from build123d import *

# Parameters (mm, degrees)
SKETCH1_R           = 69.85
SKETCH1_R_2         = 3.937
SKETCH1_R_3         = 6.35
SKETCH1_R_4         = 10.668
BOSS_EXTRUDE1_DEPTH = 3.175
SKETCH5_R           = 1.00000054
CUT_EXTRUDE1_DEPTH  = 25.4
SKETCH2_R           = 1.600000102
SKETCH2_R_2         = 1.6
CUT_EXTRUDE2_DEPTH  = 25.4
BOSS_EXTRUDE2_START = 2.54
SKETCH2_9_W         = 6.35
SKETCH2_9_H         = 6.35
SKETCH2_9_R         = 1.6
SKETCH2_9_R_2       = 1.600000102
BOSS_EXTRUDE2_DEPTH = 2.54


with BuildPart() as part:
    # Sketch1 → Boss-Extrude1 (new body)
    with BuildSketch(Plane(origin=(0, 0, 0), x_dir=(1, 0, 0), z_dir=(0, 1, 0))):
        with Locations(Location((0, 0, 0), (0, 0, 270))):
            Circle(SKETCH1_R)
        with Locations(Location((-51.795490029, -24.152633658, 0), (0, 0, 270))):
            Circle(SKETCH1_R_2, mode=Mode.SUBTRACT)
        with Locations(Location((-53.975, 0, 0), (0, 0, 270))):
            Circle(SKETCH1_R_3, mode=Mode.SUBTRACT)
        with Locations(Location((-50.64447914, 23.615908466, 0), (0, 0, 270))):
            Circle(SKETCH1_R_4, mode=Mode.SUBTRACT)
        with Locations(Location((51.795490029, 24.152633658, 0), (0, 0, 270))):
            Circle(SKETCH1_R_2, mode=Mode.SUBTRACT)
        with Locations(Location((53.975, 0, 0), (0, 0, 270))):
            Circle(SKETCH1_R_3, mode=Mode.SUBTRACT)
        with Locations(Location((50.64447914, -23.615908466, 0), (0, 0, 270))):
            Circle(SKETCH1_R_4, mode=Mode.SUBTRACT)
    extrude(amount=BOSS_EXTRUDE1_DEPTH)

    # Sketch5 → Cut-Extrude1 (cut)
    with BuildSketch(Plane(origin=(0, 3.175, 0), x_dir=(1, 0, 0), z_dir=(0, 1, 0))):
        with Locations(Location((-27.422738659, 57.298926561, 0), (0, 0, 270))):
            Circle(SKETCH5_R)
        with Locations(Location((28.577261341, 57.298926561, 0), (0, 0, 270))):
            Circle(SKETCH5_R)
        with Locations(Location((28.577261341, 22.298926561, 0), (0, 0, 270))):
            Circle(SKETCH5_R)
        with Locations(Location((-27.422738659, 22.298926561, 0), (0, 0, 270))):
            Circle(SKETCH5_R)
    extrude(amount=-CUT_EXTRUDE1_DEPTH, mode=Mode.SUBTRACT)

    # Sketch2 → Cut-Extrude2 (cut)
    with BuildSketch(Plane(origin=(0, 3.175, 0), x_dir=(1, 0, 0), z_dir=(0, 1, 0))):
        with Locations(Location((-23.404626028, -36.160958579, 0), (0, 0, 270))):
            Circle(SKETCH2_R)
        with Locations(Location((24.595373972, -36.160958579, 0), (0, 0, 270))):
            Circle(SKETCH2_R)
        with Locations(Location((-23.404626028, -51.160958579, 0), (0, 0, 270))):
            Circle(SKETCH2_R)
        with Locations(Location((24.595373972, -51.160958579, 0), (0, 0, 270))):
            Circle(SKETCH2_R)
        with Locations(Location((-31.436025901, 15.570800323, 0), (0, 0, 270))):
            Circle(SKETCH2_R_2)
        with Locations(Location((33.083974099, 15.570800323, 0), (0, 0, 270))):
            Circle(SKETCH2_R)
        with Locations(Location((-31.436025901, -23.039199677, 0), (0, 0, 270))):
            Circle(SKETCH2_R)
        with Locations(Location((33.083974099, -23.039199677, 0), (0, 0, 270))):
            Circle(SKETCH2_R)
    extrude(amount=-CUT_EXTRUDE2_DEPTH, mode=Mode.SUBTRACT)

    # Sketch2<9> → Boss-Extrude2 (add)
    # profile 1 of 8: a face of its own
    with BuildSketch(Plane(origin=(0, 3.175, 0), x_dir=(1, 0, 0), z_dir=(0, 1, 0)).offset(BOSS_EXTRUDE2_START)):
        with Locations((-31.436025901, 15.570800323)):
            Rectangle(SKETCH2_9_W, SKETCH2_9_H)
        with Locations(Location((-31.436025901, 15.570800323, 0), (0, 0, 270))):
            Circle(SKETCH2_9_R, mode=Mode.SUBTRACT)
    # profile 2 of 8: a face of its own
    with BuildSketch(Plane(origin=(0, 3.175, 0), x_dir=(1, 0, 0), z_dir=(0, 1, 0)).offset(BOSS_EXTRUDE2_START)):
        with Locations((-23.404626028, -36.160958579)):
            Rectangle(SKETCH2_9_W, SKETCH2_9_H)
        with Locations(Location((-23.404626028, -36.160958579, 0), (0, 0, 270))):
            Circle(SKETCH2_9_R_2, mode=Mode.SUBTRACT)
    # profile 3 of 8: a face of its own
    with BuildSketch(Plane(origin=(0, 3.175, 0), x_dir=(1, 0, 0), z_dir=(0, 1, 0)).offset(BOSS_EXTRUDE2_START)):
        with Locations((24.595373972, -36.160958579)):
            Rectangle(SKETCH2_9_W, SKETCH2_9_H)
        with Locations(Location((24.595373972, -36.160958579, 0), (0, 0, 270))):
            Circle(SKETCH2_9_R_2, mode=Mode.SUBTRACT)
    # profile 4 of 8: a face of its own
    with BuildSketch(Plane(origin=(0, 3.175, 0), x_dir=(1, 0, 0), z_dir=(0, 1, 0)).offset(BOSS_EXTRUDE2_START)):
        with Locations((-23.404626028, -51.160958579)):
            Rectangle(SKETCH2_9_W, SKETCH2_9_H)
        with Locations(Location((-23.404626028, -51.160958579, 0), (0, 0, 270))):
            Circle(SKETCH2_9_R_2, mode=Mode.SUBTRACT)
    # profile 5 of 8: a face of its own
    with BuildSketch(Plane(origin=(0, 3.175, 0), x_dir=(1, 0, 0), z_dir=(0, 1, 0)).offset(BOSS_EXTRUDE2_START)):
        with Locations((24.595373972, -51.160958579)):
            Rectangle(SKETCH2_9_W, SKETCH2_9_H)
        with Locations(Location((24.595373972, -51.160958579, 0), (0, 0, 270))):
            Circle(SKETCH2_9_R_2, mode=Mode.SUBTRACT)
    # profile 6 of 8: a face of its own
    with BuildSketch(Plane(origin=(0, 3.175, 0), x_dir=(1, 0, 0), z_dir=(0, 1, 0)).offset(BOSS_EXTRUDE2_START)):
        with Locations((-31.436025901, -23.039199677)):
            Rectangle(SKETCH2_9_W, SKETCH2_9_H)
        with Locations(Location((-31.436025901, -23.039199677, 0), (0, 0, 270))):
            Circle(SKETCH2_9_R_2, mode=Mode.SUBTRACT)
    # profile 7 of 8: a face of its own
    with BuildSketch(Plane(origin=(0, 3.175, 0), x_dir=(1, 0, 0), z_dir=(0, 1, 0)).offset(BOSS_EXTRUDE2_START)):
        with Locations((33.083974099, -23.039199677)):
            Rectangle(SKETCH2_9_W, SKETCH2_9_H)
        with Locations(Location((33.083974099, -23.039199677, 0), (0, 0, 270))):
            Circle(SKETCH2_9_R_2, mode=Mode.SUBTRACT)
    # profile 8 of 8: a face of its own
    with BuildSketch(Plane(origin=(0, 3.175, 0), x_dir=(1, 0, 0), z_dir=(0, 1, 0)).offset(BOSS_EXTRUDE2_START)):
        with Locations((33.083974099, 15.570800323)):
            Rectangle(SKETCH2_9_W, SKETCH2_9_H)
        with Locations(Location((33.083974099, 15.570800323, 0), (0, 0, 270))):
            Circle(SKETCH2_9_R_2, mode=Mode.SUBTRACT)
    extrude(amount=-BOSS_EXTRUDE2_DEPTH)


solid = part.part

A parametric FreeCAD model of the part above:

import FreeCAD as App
import Part
import Sketcher
Q = App.Units.Quantity


def add_polygon(sketch, points):
    """Adds a closed chain of lines whose ends are joined by coincident constraints."""
    first, n = sketch.GeometryCount, len(points)
    for a, b in zip(points, points[1:] + points[:1]):
        sketch.addGeometry(Part.LineSegment(App.Vector(*a, 0), App.Vector(*b, 0)), False)
    for i in range(n):
        sketch.addConstraint(Sketcher.Constraint("Coincident", first + i, 2, first + (i + 1) % n, 1))

doc = App.newDocument("Part")
body = doc.addObject("PartDesign::Body", "Body")

# Sketch on XZ plane
sketch1 = doc.addObject("Sketcher::SketchObject", "Sketch")
body.addObject(sketch1)
sketch1.AttachmentSupport = (doc.XZ_Plane, [""])
sketch1.MapMode = "FlatFace"
sketch1.addGeometry(Part.Circle(App.Vector(0, 0, 0), App.Vector(0, 0, 1), 69.85), False)
sketch1.addGeometry(Part.Circle(App.Vector(-50.644479, -23.615908, 0), App.Vector(0, 0, 1), 10.668), False)
sketch1.addGeometry(Part.Circle(App.Vector(-53.975, 0, 0), App.Vector(0, 0, 1), 6.35), False)
sketch1.addGeometry(Part.Circle(App.Vector(-51.79549, 24.152634, 0), App.Vector(0, 0, 1), 3.937), False)
sketch1.addGeometry(Part.Circle(App.Vector(51.79549, -24.152634, 0), App.Vector(0, 0, 1), 3.937), False)
sketch1.addGeometry(Part.Circle(App.Vector(53.975, 0, 0), App.Vector(0, 0, 1), 6.35), False)
sketch1.addGeometry(Part.Circle(App.Vector(50.644479, 23.615908, 0), App.Vector(0, 0, 1), 10.668), False)
sketch1.addConstraint(Sketcher.Constraint("Coincident", 0, 3, -1, 1))
sketch1.addConstraint(Sketcher.Constraint("Equal", 3, 4))
sketch1.addConstraint(Sketcher.Constraint("Equal", 2, 5))
sketch1.addConstraint(Sketcher.Constraint("Equal", 1, 6))
sketch1.addConstraint(Sketcher.Constraint("Symmetric", 3, 3, 4, 3, -1, 1))
sketch1.addConstraint(Sketcher.Constraint("Symmetric", 2, 3, 5, 3, -1, 1))
sketch1.addConstraint(Sketcher.Constraint("Symmetric", 1, 3, 6, 3, -1, 1))
sketch1.addConstraint(Sketcher.Constraint("PointOnObject", 2, 3, -1))
sketch1.addConstraint(Sketcher.Constraint("Diameter", 0, Q("5.5 in")))
sketch1.addConstraint(Sketcher.Constraint("Diameter", 2, Q("0.5 in")))
sketch1.addConstraint(Sketcher.Constraint("Diameter", 1, Q("0.84 in")))
sketch1.addConstraint(Sketcher.Constraint("Diameter", 3, Q("0.31 in")))
sketch1.addConstraint(Sketcher.Constraint("DistanceX", 2, 3, 5, 3, Q("4.25 in")))
sketch1.addConstraint(Sketcher.Constraint("DistanceX", 1, 3, -1, 1, 50.644479))
sketch1.addConstraint(Sketcher.Constraint("DistanceY", 1, 3, -1, 1, 23.615908))
sketch1.addConstraint(Sketcher.Constraint("DistanceX", 3, 3, -1, 1, 51.79549))
sketch1.addConstraint(Sketcher.Constraint("DistanceY", -1, 1, 3, 3, 24.152634))
pad1 = doc.addObject("PartDesign::Pad", "Pad")
body.addObject(pad1)
pad1.Profile = sketch1
pad1.Length = Q("0.125 in")
pad1.Reversed = True

# Sketch on XZ plane
sketch2 = doc.addObject("Sketcher::SketchObject", "Sketch001")
body.addObject(sketch2)
sketch2.AttachmentSupport = (doc.XZ_Plane, [""])
sketch2.MapMode = "FlatFace"
sketch2.AttachmentOffset = App.Placement(App.Vector(0, 0, -0.125 * 25.4), App.Rotation())
sketch2.addGeometry(Part.Circle(App.Vector(-27.422739, -57.298927, 0), App.Vector(0, 0, 1), 1.000001), False)
sketch2.addGeometry(Part.Circle(App.Vector(28.577261, -57.298927, 0), App.Vector(0, 0, 1), 1.000001), False)
sketch2.addGeometry(Part.Circle(App.Vector(28.577261, -22.298927, 0), App.Vector(0, 0, 1), 1.000001), False)
sketch2.addGeometry(Part.Circle(App.Vector(-27.422739, -22.298927, 0), App.Vector(0, 0, 1), 1.000001), False)
sketch2.addConstraint(Sketcher.Constraint("Equal", 0, 1))
sketch2.addConstraint(Sketcher.Constraint("Equal", 1, 2))
sketch2.addConstraint(Sketcher.Constraint("Equal", 2, 3))
sketch2.addConstraint(Sketcher.Constraint("Horizontal", 0, 3, 1, 3))
sketch2.addConstraint(Sketcher.Constraint("Horizontal", 2, 3, 3, 3))
sketch2.addConstraint(Sketcher.Constraint("Vertical", 1, 3, 2, 3))
sketch2.addConstraint(Sketcher.Constraint("Vertical", 0, 3, 3, 3))
sketch2.addConstraint(Sketcher.Constraint("Diameter", 0, 2.000001))
sketch2.addConstraint(Sketcher.Constraint("DistanceX", 0, 3, 1, 3, 56.0))
sketch2.addConstraint(Sketcher.Constraint("DistanceY", 1, 3, 2, 3, 35.0))
sketch2.addConstraint(Sketcher.Constraint("DistanceX", 0, 3, -1, 1, 27.422739))
sketch2.addConstraint(Sketcher.Constraint("DistanceY", 0, 3, -1, 1, 57.298927))
pocket1 = doc.addObject("PartDesign::Pocket", "Pocket")
body.addObject(pocket1)
pocket1.Profile = sketch2
pocket1.Length = Q("1 in")
pocket1.Reversed = True

# Sketch on XZ plane
sketch3 = doc.addObject("Sketcher::SketchObject", "Sketch002")
body.addObject(sketch3)
sketch3.AttachmentSupport = (doc.XZ_Plane, [""])
sketch3.MapMode = "FlatFace"
sketch3.AttachmentOffset = App.Placement(App.Vector(0, 0, -0.125 * 25.4), App.Rotation())
sketch3.addGeometry(Part.Circle(App.Vector(-23.404626, 36.160959, 0), App.Vector(0, 0, 1), 1.6), False)
sketch3.addGeometry(Part.Circle(App.Vector(24.595374, 36.160959, 0), App.Vector(0, 0, 1), 1.6), False)
sketch3.addGeometry(Part.Circle(App.Vector(-23.404626, 51.160959, 0), App.Vector(0, 0, 1), 1.6), False)
sketch3.addGeometry(Part.Circle(App.Vector(24.595374, 51.160959, 0), App.Vector(0, 0, 1), 1.6), False)
sketch3.addGeometry(Part.Circle(App.Vector(-31.436026, -15.5708, 0), App.Vector(0, 0, 1), 1.6), False)
sketch3.addGeometry(Part.Circle(App.Vector(33.083974, -15.5708, 0), App.Vector(0, 0, 1), 1.6), False)
sketch3.addGeometry(Part.Circle(App.Vector(-31.436026, 23.0392, 0), App.Vector(0, 0, 1), 1.6), False)
sketch3.addGeometry(Part.Circle(App.Vector(33.083974, 23.0392, 0), App.Vector(0, 0, 1), 1.6), False)
sketch3.addConstraint(Sketcher.Constraint("Equal", 0, 1))
sketch3.addConstraint(Sketcher.Constraint("Equal", 1, 2))
sketch3.addConstraint(Sketcher.Constraint("Equal", 2, 3))
sketch3.addConstraint(Sketcher.Constraint("Equal", 3, 4))
sketch3.addConstraint(Sketcher.Constraint("Equal", 4, 5))
sketch3.addConstraint(Sketcher.Constraint("Equal", 5, 6))
sketch3.addConstraint(Sketcher.Constraint("Equal", 6, 7))
sketch3.addConstraint(Sketcher.Constraint("Horizontal", 0, 3, 1, 3))
sketch3.addConstraint(Sketcher.Constraint("Horizontal", 2, 3, 3, 3))
sketch3.addConstraint(Sketcher.Constraint("Horizontal", 4, 3, 5, 3))
sketch3.addConstraint(Sketcher.Constraint("Horizontal", 6, 3, 7, 3))
sketch3.addConstraint(Sketcher.Constraint("Vertical", 0, 3, 2, 3))
sketch3.addConstraint(Sketcher.Constraint("Vertical", 1, 3, 3, 3))
sketch3.addConstraint(Sketcher.Constraint("Vertical", 4, 3, 6, 3))
sketch3.addConstraint(Sketcher.Constraint("Vertical", 5, 3, 7, 3))
sketch3.addConstraint(Sketcher.Constraint("Diameter", 0, 3.2))
sketch3.addConstraint(Sketcher.Constraint("DistanceY", 4, 3, -1, 1, 15.5708))
sketch3.addConstraint(Sketcher.Constraint("DistanceY", -1, 1, 6, 3, 23.0392))
sketch3.addConstraint(Sketcher.Constraint("DistanceX", 0, 3, 1, 3, 48.0))
sketch3.addConstraint(Sketcher.Constraint("DistanceY", 0, 3, 2, 3, 15.0))
sketch3.addConstraint(Sketcher.Constraint("DistanceX", 4, 3, 0, 3, 8.0314))
sketch3.addConstraint(Sketcher.Constraint("DistanceX", 1, 3, 5, 3, 8.4886))
sketch3.addConstraint(Sketcher.Constraint("DistanceY", -1, 1, 0, 3, 36.160959))
sketch3.addConstraint(Sketcher.Constraint("DistanceX", 0, 3, -1, 1, 23.404626))
pocket2 = doc.addObject("PartDesign::Pocket", "Pocket001")
body.addObject(pocket2)
pocket2.Profile = sketch3
pocket2.Length = Q("1 in")
pocket2.Reversed = True

# Sketch on XZ plane
sketch4 = doc.addObject("Sketcher::SketchObject", "Sketch003")
body.addObject(sketch4)
sketch4.AttachmentSupport = (doc.XZ_Plane, [""])
sketch4.MapMode = "FlatFace"
sketch4.AttachmentOffset = App.Placement(App.Vector(0, 0, -0.225 * 25.4), App.Rotation())
add_polygon(sketch4, [(-34.611026, -18.7458), (-34.611026, -12.3958), (-28.261026, -12.3958), (-28.261026, -18.7458)])  # lines 0-3
sketch4.addGeometry(Part.Circle(App.Vector(-31.436026, -15.5708, 0), App.Vector(0, 0, 1), 1.6), False)  # 4
add_polygon(sketch4, [(-26.579626, 32.985959), (-26.579626, 39.335959), (-20.229626, 39.335959), (-20.229626, 32.985959)])  # lines 5-8
sketch4.addGeometry(Part.Circle(App.Vector(-23.404626, 36.160959, 0), App.Vector(0, 0, 1), 1.6), False)  # 9
add_polygon(sketch4, [(21.420374, 32.985959), (21.420374, 39.335959), (27.770374, 39.335959), (27.770374, 32.985959)])  # lines 10-13
sketch4.addGeometry(Part.Circle(App.Vector(24.595374, 36.160959, 0), App.Vector(0, 0, 1), 1.6), False)  # 14
add_polygon(sketch4, [(-26.579626, 47.985959), (-26.579626, 54.335959), (-20.229626, 54.335959), (-20.229626, 47.985959)])  # lines 15-18
sketch4.addGeometry(Part.Circle(App.Vector(-23.404626, 51.160959, 0), App.Vector(0, 0, 1), 1.6), False)  # 19
add_polygon(sketch4, [(21.420374, 47.985959), (21.420374, 54.335959), (27.770374, 54.335959), (27.770374, 47.985959)])  # lines 20-23
sketch4.addGeometry(Part.Circle(App.Vector(24.595374, 51.160959, 0), App.Vector(0, 0, 1), 1.6), False)  # 24
add_polygon(sketch4, [(-34.611026, 19.8642), (-34.611026, 26.2142), (-28.261026, 26.2142), (-28.261026, 19.8642)])  # lines 25-28
sketch4.addGeometry(Part.Circle(App.Vector(-31.436026, 23.0392, 0), App.Vector(0, 0, 1), 1.6), False)  # 29
add_polygon(sketch4, [(29.908974, 19.8642), (29.908974, 26.2142), (36.258974, 26.2142), (36.258974, 19.8642)])  # lines 30-33
sketch4.addGeometry(Part.Circle(App.Vector(33.083974, 23.0392, 0), App.Vector(0, 0, 1), 1.6), False)  # 34
add_polygon(sketch4, [(29.908974, -18.7458), (29.908974, -12.3958), (36.258974, -12.3958), (36.258974, -18.7458)])  # lines 35-38
sketch4.addGeometry(Part.Circle(App.Vector(33.083974, -15.5708, 0), App.Vector(0, 0, 1), 1.6), False)  # 39
sketch4.addConstraint(Sketcher.Constraint("Vertical", 0))
sketch4.addConstraint(Sketcher.Constraint("Horizontal", 1))
sketch4.addConstraint(Sketcher.Constraint("Vertical", 2))
sketch4.addConstraint(Sketcher.Constraint("Horizontal", 3))
sketch4.addConstraint(Sketcher.Constraint("Vertical", 5))
sketch4.addConstraint(Sketcher.Constraint("Horizontal", 6))
sketch4.addConstraint(Sketcher.Constraint("Vertical", 7))
sketch4.addConstraint(Sketcher.Constraint("Horizontal", 8))
sketch4.addConstraint(Sketcher.Constraint("Vertical", 10))
sketch4.addConstraint(Sketcher.Constraint("Horizontal", 11))
sketch4.addConstraint(Sketcher.Constraint("Vertical", 12))
sketch4.addConstraint(Sketcher.Constraint("Horizontal", 13))
sketch4.addConstraint(Sketcher.Constraint("Vertical", 15))
sketch4.addConstraint(Sketcher.Constraint("Horizontal", 16))
sketch4.addConstraint(Sketcher.Constraint("Vertical", 17))
sketch4.addConstraint(Sketcher.Constraint("Horizontal", 18))
sketch4.addConstraint(Sketcher.Constraint("Vertical", 20))
sketch4.addConstraint(Sketcher.Constraint("Horizontal", 21))
sketch4.addConstraint(Sketcher.Constraint("Vertical", 22))
sketch4.addConstraint(Sketcher.Constraint("Horizontal", 23))
sketch4.addConstraint(Sketcher.Constraint("Vertical", 25))
sketch4.addConstraint(Sketcher.Constraint("Horizontal", 26))
sketch4.addConstraint(Sketcher.Constraint("Vertical", 27))
sketch4.addConstraint(Sketcher.Constraint("Horizontal", 28))
sketch4.addConstraint(Sketcher.Constraint("Vertical", 30))
sketch4.addConstraint(Sketcher.Constraint("Horizontal", 31))
sketch4.addConstraint(Sketcher.Constraint("Vertical", 32))
sketch4.addConstraint(Sketcher.Constraint("Horizontal", 33))
sketch4.addConstraint(Sketcher.Constraint("Vertical", 35))
sketch4.addConstraint(Sketcher.Constraint("Horizontal", 36))
sketch4.addConstraint(Sketcher.Constraint("Vertical", 37))
sketch4.addConstraint(Sketcher.Constraint("Horizontal", 38))
sketch4.addConstraint(Sketcher.Constraint("Equal", 4, 9))
sketch4.addConstraint(Sketcher.Constraint("Equal", 9, 14))
sketch4.addConstraint(Sketcher.Constraint("Equal", 14, 19))
sketch4.addConstraint(Sketcher.Constraint("Equal", 19, 24))
sketch4.addConstraint(Sketcher.Constraint("Equal", 24, 29))
sketch4.addConstraint(Sketcher.Constraint("Equal", 29, 34))
sketch4.addConstraint(Sketcher.Constraint("Equal", 34, 39))
sketch4.addConstraint(Sketcher.Constraint("Horizontal", 9, 3, 14, 3))
sketch4.addConstraint(Sketcher.Constraint("Horizontal", 19, 3, 24, 3))
sketch4.addConstraint(Sketcher.Constraint("Horizontal", 29, 3, 34, 3))
sketch4.addConstraint(Sketcher.Constraint("Horizontal", 4, 3, 39, 3))
sketch4.addConstraint(Sketcher.Constraint("Horizontal", 6, 2, 10, 2))
sketch4.addConstraint(Sketcher.Constraint("Horizontal", 8, 2, 12, 2))
sketch4.addConstraint(Sketcher.Constraint("Horizontal", 16, 2, 20, 2))
sketch4.addConstraint(Sketcher.Constraint("Horizontal", 18, 2, 22, 2))
sketch4.addConstraint(Sketcher.Constraint("Horizontal", 26, 2, 30, 2))
sketch4.addConstraint(Sketcher.Constraint("Horizontal", 28, 2, 32, 2))
sketch4.addConstraint(Sketcher.Constraint("Horizontal", 1, 2, 35, 2))
sketch4.addConstraint(Sketcher.Constraint("Horizontal", 3, 2, 37, 2))
sketch4.addConstraint(Sketcher.Constraint("Vertical", 9, 3, 19, 3))
sketch4.addConstraint(Sketcher.Constraint("Vertical", 14, 3, 24, 3))
sketch4.addConstraint(Sketcher.Constraint("Vertical", 4, 3, 29, 3))
sketch4.addConstraint(Sketcher.Constraint("Vertical", 34, 3, 39, 3))
sketch4.addConstraint(Sketcher.Constraint("Vertical", 8, 2, 15, 2))
sketch4.addConstraint(Sketcher.Constraint("Vertical", 7, 2, 16, 2))
sketch4.addConstraint(Sketcher.Constraint("Vertical", 13, 2, 20, 2))
sketch4.addConstraint(Sketcher.Constraint("Vertical", 12, 2, 21, 2))
sketch4.addConstraint(Sketcher.Constraint("Vertical", 3, 2, 25, 2))
sketch4.addConstraint(Sketcher.Constraint("Vertical", 2, 2, 26, 2))
sketch4.addConstraint(Sketcher.Constraint("Vertical", 33, 2, 35, 2))
sketch4.addConstraint(Sketcher.Constraint("Vertical", 32, 2, 36, 2))
sketch4.addConstraint(Sketcher.Constraint("Equal", 3, 6))
sketch4.addConstraint(Sketcher.Constraint("Equal", 8, 11))
sketch4.addConstraint(Sketcher.Constraint("Equal", 28, 31))
sketch4.addConstraint(Sketcher.Constraint("Equal", 38, 0))
sketch4.addConstraint(Sketcher.Constraint("Equal", 2, 5))
sketch4.addConstraint(Sketcher.Constraint("Equal", 12, 15))
sketch4.addConstraint(Sketcher.Constraint("Equal", 22, 25))
sketch4.addConstraint(Sketcher.Constraint("DistanceX", 1, 1, 1, 2, Q("0.25 in")))
sketch4.addConstraint(Sketcher.Constraint("Diameter", 4, 3.2))
sketch4.addConstraint(Sketcher.Constraint("DistanceX", 0, 2, 4, 3, Q("0.125 in")))
sketch4.addConstraint(Sketcher.Constraint("DistanceY", 4, 3, 0, 2, Q("0.125 in")))
sketch4.addConstraint(Sketcher.Constraint("DistanceX", 5, 2, 9, 3, Q("0.125 in")))
sketch4.addConstraint(Sketcher.Constraint("DistanceY", 9, 3, 5, 2, Q("0.125 in")))
sketch4.addConstraint(Sketcher.Constraint("DistanceX", 10, 2, 14, 3, Q("0.125 in")))
sketch4.addConstraint(Sketcher.Constraint("DistanceY", 19, 3, 15, 2, Q("0.125 in")))
sketch4.addConstraint(Sketcher.Constraint("DistanceY", 29, 3, 25, 2, Q("0.125 in")))
sketch4.addConstraint(Sketcher.Constraint("DistanceX", 30, 2, 34, 3, Q("0.125 in")))
sketch4.addConstraint(Sketcher.Constraint("DistanceY", 4, 3, -1, 1, 15.5708))
sketch4.addConstraint(Sketcher.Constraint("DistanceY", -1, 1, 29, 3, 23.0392))
sketch4.addConstraint(Sketcher.Constraint("DistanceX", 4, 3, 9, 3, 8.0314))
sketch4.addConstraint(Sketcher.Constraint("DistanceX", 9, 3, 14, 3, 48.0))
sketch4.addConstraint(Sketcher.Constraint("DistanceY", 9, 3, 19, 3, 15.0))
sketch4.addConstraint(Sketcher.Constraint("DistanceX", 14, 3, 34, 3, 8.4886))
sketch4.addConstraint(Sketcher.Constraint("DistanceY", -1, 1, 9, 3, 36.160959))
sketch4.addConstraint(Sketcher.Constraint("DistanceX", 4, 3, -1, 1, 31.436026))
pad2 = doc.addObject("PartDesign::Pad", "Pad001")
body.addObject(pad2)
pad2.Profile = sketch4
pad2.Length = Q("0.1 in")

doc.recompute()
